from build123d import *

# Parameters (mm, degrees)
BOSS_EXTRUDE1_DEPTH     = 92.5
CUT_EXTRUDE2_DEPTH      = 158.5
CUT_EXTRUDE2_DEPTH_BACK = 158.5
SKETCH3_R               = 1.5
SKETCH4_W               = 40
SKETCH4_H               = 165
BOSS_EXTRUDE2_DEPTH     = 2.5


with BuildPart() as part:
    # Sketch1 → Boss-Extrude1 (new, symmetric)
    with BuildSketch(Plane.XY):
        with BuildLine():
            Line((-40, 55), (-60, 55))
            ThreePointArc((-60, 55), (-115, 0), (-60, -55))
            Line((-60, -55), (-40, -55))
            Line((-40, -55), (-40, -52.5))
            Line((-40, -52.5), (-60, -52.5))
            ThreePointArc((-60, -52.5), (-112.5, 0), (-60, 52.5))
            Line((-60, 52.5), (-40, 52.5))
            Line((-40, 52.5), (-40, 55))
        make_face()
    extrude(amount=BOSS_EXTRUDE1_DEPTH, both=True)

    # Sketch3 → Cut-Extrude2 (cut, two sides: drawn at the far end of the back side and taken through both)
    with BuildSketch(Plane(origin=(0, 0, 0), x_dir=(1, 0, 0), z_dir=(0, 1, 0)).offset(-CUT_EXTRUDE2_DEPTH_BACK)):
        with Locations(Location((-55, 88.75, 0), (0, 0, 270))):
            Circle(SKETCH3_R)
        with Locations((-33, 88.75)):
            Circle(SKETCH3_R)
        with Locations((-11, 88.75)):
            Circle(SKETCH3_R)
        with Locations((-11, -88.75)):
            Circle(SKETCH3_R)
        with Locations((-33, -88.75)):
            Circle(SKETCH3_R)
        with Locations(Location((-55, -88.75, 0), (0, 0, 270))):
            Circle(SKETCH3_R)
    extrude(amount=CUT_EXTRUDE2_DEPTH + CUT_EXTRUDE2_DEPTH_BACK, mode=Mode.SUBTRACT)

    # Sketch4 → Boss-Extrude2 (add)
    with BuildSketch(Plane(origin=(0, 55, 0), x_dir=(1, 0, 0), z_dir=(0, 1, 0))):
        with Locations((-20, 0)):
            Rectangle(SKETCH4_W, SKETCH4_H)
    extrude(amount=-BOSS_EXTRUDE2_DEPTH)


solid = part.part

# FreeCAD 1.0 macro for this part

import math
import FreeCAD as App
import Part
import Sketcher
from FreeCAD import Vector

doc = App.newDocument("Part")
params = doc.addObject("Spreadsheet::Sheet", "Params")
for row, (alias, value) in enumerate([
    ("sketch1_radius", "55 mm"),
    ("sketch1_radius2", "52.5 mm"),
    ("sketch1_width", "20 mm"),
    ("pad1_length", "185 mm"),
    ("sketch2_diameter", "3 mm"),
    ("sketch3_width", "40 mm"),
    ("sketch3_height", "165 mm"),
    ("pad2_length", "2.5 mm"),
], start=1):
    params.set(f"A{row}", alias)
    params.set(f"B{row}", "=" + value)
    params.setAlias(f"B{row}", alias)

body = doc.addObject("PartDesign::Body", "Body")

sketch1 = doc.addObject("Sketcher::SketchObject", "Sketch")
body.addObject(sketch1)
sketch1.AttachmentSupport = (doc.XY_Plane, [""])
sketch1.MapMode = "FlatFace"
sketch1.addGeometry(Part.LineSegment(Vector(-40, 55, 0), Vector(-60, 55, 0)), False)
sketch1.addGeometry(Part.ArcOfCircle(Part.Circle(Vector(-60, 0, 0), Vector(0, 0, 1), 55), math.radians(90), math.radians(270)), False)
sketch1.addGeometry(Part.LineSegment(Vector(-60, -55, 0), Vector(-40, -55, 0)), False)
sketch1.addGeometry(Part.LineSegment(Vector(-40, -55, 0), Vector(-40, -52.5, 0)), False)
sketch1.addGeometry(Part.LineSegment(Vector(-40, -52.5, 0), Vector(-60, -52.5, 0)), False)
sketch1.addGeometry(Part.ArcOfCircle(Part.Circle(Vector(-60, 0, 0), Vector(0, 0, 1), 52.5), math.radians(90), math.radians(270)), False)
sketch1.addGeometry(Part.LineSegment(Vector(-60, 52.5, 0), Vector(-40, 52.5, 0)), False)
sketch1.addGeometry(Part.LineSegment(Vector(-40, 52.5, 0), Vector(-40, 55, 0)), False)
sketch1.addConstraint(Sketcher.Constraint("Tangent", 0, 2, 1, 1))
sketch1.addConstraint(Sketcher.Constraint("Tangent", 1, 2, 2, 1))
sketch1.addConstraint(Sketcher.Constraint("Coincident", 2, 2, 3, 1))
sketch1.addConstraint(Sketcher.Constraint("Coincident", 3, 2, 4, 1))
sketch1.addConstraint(Sketcher.Constraint("Tangent", 4, 2, 5, 2))
sketch1.addConstraint(Sketcher.Constraint("Tangent", 5, 1, 6, 1))
sketch1.addConstraint(Sketcher.Constraint("Coincident", 6, 2, 7, 1))
sketch1.addConstraint(Sketcher.Constraint("Coincident", 7, 2, 0, 1))
sketch1.addConstraint(Sketcher.Constraint("Horizontal", 0))
sketch1.addConstraint(Sketcher.Constraint("Horizontal", 2))
sketch1.addConstraint(Sketcher.Constraint("Vertical", 3))
sketch1.addConstraint(Sketcher.Constraint("Horizontal", 4))
sketch1.addConstraint(Sketcher.Constraint("Horizontal", 6))
sketch1.addConstraint(Sketcher.Constraint("Vertical", 7))
sketch1.addConstraint(Sketcher.Constraint("Coincident", 5, 3, 1, 3))
sketch1.addConstraint(Sketcher.Constraint("Symmetric", 3, 2, 6, 2, -1))
sketch1.addConstraint(Sketcher.Constraint("Radius", 1, 55.0))
sketch1.addConstraint(Sketcher.Constraint("Radius", 5, 52.5))
sketch1.addConstraint(Sketcher.Constraint("DistanceX", 0, 2, 0, 1, 20.0))
sketch1.addConstraint(Sketcher.Constraint("DistanceX", 1, 3, -1, 1, 60.0))
sketch1.setExpression("Constraints[16]", "Params.sketch1_radius")
sketch1.setExpression("Constraints[17]", "Params.sketch1_radius2")
sketch1.setExpression("Constraints[18]", "Params.sketch1_width")
pad1 = doc.addObject("PartDesign::Pad", "Pad")
body.addObject(pad1)
pad1.Profile = sketch1
pad1.setExpression("Length", "Params.pad1_length")
pad1.Midplane = True

sketch2 = doc.addObject("Sketcher::SketchObject", "Sketch001")
body.addObject(sketch2)
sketch2.AttachmentSupport = (doc.XZ_Plane, [""])
sketch2.MapMode = "FlatFace"
sketch2.addGeometry(Part.Circle(Vector(-55, -88.8, 0), Vector(0, 0, 1), 1.5), False)
sketch2.addGeometry(Part.Circle(Vector(-33, -88.8, 0), Vector(0, 0, 1), 1.5), False)
sketch2.addGeometry(Part.Circle(Vector(-11, -88.8, 0), Vector(0, 0, 1), 1.5), False)
sketch2.addGeometry(Part.Circle(Vector(-11, 88.8, 0), Vector(0, 0, 1), 1.5), False)
sketch2.addGeometry(Part.Circle(Vector(-33, 88.8, 0), Vector(0, 0, 1), 1.5), False)
sketch2.addGeometry(Part.Circle(Vector(-55, 88.8, 0), Vector(0, 0, 1), 1.5), False)
sketch2.addConstraint(Sketcher.Constraint("Equal", 0, 1))
sketch2.addConstraint(Sketcher.Constraint("Equal", 1, 2))
sketch2.addConstraint(Sketcher.Constraint("Equal", 2, 3))
sketch2.addConstraint(Sketcher.Constraint("Equal", 3, 4))
sketch2.addConstraint(Sketcher.Constraint("Equal", 4, 5))
sketch2.addConstraint(Sketcher.Constraint("Symmetric", 2, 3, 3, 3, -1))
sketch2.addConstraint(Sketcher.Constraint("Symmetric", 1, 3, 4, 3, -1))
sketch2.addConstraint(Sketcher.Constraint("Symmetric", 0, 3, 5, 3, -1))
sketch2.addConstraint(Sketcher.Constraint("Horizontal", 0, 3, 1, 3))
sketch2.addConstraint(Sketcher.Constraint("Horizontal", 1, 3, 2, 3))
sketch2.addConstraint(Sketcher.Constraint("Diameter", 0, 3.0))
sketch2.addConstraint(Sketcher.Constraint("DistanceX", 0, 3, -1, 1, 55.0))
sketch2.addConstraint(Sketcher.Constraint("DistanceX", 1, 3, -1, 1, 33.0))
sketch2.addConstraint(Sketcher.Constraint("DistanceX", 2, 3, -1, 1, 11.0))
sketch2.addConstraint(Sketcher.Constraint("DistanceY", 2, 3, 3, 3, 177.5))
sketch2.setExpression("Constraints[10]", "Params.sketch2_diameter")
pocket1 = doc.addObject("PartDesign::Pocket", "Pocket")
body.addObject(pocket1)
pocket1.Profile = sketch2
pocket1.Type = "ThroughAll"
pocket1.Midplane = True

sketch3 = doc.addObject("Sketcher::SketchObject", "Sketch002")
body.addObject(sketch3)
sketch3.AttachmentSupport = (doc.XZ_Plane, [""])
sketch3.MapMode = "FlatFace"
sketch3.AttachmentOffset = App.Placement(Vector(0, 0, -55), App.Rotation())
sketch3.addGeometry(Part.LineSegment(Vector(-40, -82, 0), Vector(-40, 82, 0)), False)
sketch3.addGeometry(Part.LineSegment(Vector(-40, 82, 0), Vector(0, 82, 0)), False)
sketch3.addGeometry(Part.LineSegment(Vector(0, 82, 0), Vector(0, -82, 0)), False)
sketch3.addGeometry(Part.LineSegment(Vector(0, -82, 0), Vector(-40, -82, 0)), False)
sketch3.addConstraint(Sketcher.Constraint("Coincident", 0, 2, 1, 1))
sketch3.addConstraint(Sketcher.Constraint("Coincident", 1, 2, 2, 1))
sketch3.addConstraint(Sketcher.Constraint("Coincident", 2, 2, 3, 1))
sketch3.addConstraint(Sketcher.Constraint("Coincident", 3, 2, 0, 1))
sketch3.addConstraint(Sketcher.Constraint("Vertical", 0))
sketch3.addConstraint(Sketcher.Constraint("Horizontal", 1))
sketch3.addConstraint(Sketcher.Constraint("Vertical", 2))
sketch3.addConstraint(Sketcher.Constraint("Horizontal", 3))
sketch3.addConstraint(Sketcher.Constraint("Symmetric", 1, 2, 2, 2, -1, 1))
sketch3.addConstraint(Sketcher.Constraint("DistanceX", 1, 1, 1, 2, 40.0))
sketch3.addConstraint(Sketcher.Constraint("DistanceY", 0, 1, 0, 2, 165.0))
sketch3.setExpression("Constraints[9]", "Params.sketch3_width")
sketch3.setExpression("Constraints[10]", "Params.sketch3_height")
pad2 = doc.addObject("PartDesign::Pad", "Pad001")
body.addObject(pad2)
pad2.Profile = sketch3
pad2.setExpression("Length", "Params.pad2_length")

doc.recompute()
